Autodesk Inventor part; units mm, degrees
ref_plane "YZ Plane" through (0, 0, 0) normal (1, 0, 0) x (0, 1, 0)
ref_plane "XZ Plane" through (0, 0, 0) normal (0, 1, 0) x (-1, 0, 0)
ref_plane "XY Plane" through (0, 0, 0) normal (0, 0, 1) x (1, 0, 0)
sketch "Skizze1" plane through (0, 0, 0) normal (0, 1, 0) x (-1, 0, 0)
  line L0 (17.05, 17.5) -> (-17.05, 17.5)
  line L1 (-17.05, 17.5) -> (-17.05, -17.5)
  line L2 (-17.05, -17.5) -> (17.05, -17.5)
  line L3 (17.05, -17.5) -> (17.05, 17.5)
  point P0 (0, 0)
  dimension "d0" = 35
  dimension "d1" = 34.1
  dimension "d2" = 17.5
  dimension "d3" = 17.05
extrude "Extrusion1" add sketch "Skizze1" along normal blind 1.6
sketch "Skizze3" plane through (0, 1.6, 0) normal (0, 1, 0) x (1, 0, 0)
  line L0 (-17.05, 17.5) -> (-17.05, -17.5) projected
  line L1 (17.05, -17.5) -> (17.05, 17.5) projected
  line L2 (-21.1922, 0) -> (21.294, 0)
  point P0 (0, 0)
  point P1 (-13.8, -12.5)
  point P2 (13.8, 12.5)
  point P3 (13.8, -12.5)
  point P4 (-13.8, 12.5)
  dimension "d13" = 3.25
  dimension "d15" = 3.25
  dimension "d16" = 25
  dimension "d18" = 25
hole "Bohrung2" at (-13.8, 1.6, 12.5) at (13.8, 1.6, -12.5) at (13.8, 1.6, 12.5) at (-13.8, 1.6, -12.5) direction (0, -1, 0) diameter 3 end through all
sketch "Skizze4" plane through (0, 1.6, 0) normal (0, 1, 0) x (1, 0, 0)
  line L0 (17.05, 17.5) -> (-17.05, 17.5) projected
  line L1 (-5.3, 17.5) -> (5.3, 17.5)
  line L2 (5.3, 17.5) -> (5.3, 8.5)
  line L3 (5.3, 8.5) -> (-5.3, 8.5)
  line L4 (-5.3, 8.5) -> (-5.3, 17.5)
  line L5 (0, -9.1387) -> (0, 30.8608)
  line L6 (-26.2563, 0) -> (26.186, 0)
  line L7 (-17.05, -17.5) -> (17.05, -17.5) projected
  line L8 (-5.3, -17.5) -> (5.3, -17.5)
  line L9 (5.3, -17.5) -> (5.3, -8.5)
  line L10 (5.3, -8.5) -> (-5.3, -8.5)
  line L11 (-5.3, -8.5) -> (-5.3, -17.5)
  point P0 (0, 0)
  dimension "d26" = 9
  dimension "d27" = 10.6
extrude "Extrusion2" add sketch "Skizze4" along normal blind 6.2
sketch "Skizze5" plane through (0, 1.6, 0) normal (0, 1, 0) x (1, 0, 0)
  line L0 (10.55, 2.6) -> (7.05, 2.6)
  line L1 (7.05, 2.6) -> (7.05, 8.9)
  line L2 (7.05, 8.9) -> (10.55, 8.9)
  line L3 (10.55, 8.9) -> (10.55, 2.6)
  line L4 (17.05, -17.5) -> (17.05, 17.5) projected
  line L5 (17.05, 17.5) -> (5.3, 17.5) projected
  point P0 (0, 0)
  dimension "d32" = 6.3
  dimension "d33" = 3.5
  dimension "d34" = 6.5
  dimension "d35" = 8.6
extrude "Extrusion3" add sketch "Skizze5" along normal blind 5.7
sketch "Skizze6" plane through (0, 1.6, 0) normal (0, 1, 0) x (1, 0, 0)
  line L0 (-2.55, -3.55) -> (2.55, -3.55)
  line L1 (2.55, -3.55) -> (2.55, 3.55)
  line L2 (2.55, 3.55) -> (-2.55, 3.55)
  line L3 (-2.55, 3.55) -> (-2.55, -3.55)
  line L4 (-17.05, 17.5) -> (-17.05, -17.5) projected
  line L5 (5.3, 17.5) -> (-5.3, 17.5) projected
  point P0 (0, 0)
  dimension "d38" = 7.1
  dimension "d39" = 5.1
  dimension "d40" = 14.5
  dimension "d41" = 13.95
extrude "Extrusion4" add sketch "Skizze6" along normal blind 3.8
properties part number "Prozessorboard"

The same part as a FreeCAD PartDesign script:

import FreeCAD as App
import Part
import Sketcher
Q = App.Units.Quantity

doc = App.newDocument("Part")
body = doc.addObject("PartDesign::Body", "Body")

sketch1 = body.newObject("Sketcher::SketchObject", "Sketch")
sketch1.AttachmentSupport = (doc.getObject("XZ_Plane"), [""])
sketch1.MapMode = "FlatFace"
sketch1.addGeometry([
    Part.LineSegment(App.Vector(-17, -18, 0), App.Vector(-17, 18, 0)),
    Part.LineSegment(App.Vector(-17, 18, 0), App.Vector(17, 18, 0)),
    Part.LineSegment(App.Vector(17, 18, 0), App.Vector(17, -18, 0)),
    Part.LineSegment(App.Vector(17, -18, 0), App.Vector(-17, -18, 0)),
], False)
sketch1.addConstraint([
    Sketcher.Constraint("Coincident", 0, 2, 1, 1),
    Sketcher.Constraint("Coincident", 1, 2, 2, 1),
    Sketcher.Constraint("Coincident", 2, 2, 3, 1),
    Sketcher.Constraint("Coincident", 3, 2, 0, 1),
    Sketcher.Constraint("Vertical", 0),
    Sketcher.Constraint("Horizontal", 1),
    Sketcher.Constraint("Vertical", 2),
    Sketcher.Constraint("Horizontal", 3),
    Sketcher.Constraint("Symmetric", 0, 2, 2, 2, -1, 1),
    Sketcher.Constraint("DistanceY", 0, 1, 0, 2, Q("35 mm")),
    Sketcher.Constraint("DistanceX", 1, 1, 1, 2, Q("34.1 mm")),
])
pad1 = body.newObject("PartDesign::Pad", "Pad")
pad1.Profile = sketch1
pad1.Length = 1.6
pad1.Reversed = True

sketch2 = body.newObject("Sketcher::SketchObject", "Sketch001")
sketch2.AttachmentSupport = (doc.getObject("XZ_Plane"), [""])
sketch2.MapMode = "FlatFace"
sketch2.AttachmentOffset = App.Placement(App.Vector(0, 0, -1.6), App.Rotation())
sketch2.addGeometry([
    Part.Circle(App.Vector(-13.8, 12.5, 0), App.Vector(0, 0, 1), 1.5),
    Part.Circle(App.Vector(13.8, -12.5, 0), App.Vector(0, 0, 1), 1.5),
    Part.Circle(App.Vector(13.8, 12.5, 0), App.Vector(0, 0, 1), 1.5),
    Part.Circle(App.Vector(-13.8, -12.5, 0), App.Vector(0, 0, 1), 1.5),
], False)
sketch2.addConstraint([
    Sketcher.Constraint("Equal", 0, 1),
    Sketcher.Constraint("Equal", 1, 2),
    Sketcher.Constraint("Equal", 2, 3),
    Sketcher.Constraint("Symmetric", 0, 3, 1, 3, -1, 1),
    Sketcher.Constraint("Symmetric", 2, 3, 3, 3, -1, 1),
    Sketcher.Constraint("Symmetric", 0, 3, 2, 3, -2),
    Sketcher.Constraint("Diameter", 0, Q("3 mm")),
    Sketcher.Constraint("DistanceY", 1, 3, 0, 3, Q("25 mm")),
    Sketcher.Constraint("DistanceX", 0, 3, -1, 1, Q("13.8 mm")),
])
doc.recompute()
hole = body.newObject("PartDesign::Hole", "Hole")
hole.Profile = sketch2
hole.ThreadType = "None"
hole.Diameter = 3
hole.DepthType = "ThroughAll"
hole.Reversed = True

sketch3 = body.newObject("Sketcher::SketchObject", "Sketch002")
sketch3.AttachmentSupport = (doc.getObject("XZ_Plane"), [""])
sketch3.MapMode = "FlatFace"
sketch3.AttachmentOffset = App.Placement(App.Vector(0, 0, -1.6), App.Rotation())
sketch3.addGeometry([
    Part.LineSegment(App.Vector(5, -8, 0), App.Vector(5, -18, 0)),
    Part.LineSegment(App.Vector(5, -18, 0), App.Vector(-5, -18, 0)),
    Part.LineSegment(App.Vector(-5, -18, 0), App.Vector(-5, -8, 0)),
    Part.LineSegment(App.Vector(-5, -8, 0), App.Vector(5, -8, 0)),
    Part.LineSegment(App.Vector(5, 8, 0), App.Vector(-5, 8, 0)),
    Part.LineSegment(App.Vector(-5, 8, 0), App.Vector(-5, 18, 0)),
    Part.LineSegment(App.Vector(-5, 18, 0), App.Vector(5, 18, 0)),
    Part.LineSegment(App.Vector(5, 18, 0), App.Vector(5, 8, 0)),
], False)
sketch3.addConstraint([
    Sketcher.Constraint("Coincident", 0, 2, 1, 1),
    Sketcher.Constraint("Coincident", 1, 2, 2, 1),
    Sketcher.Constraint("Coincident", 2, 2, 3, 1),
    Sketcher.Constraint("Coincident", 3, 2, 0, 1),
    Sketcher.Constraint("Coincident", 4, 2, 5, 1),
    Sketcher.Constraint("Coincident", 5, 2, 6, 1),
    Sketcher.Constraint("Coincident", 6, 2, 7, 1),
    Sketcher.Constraint("Coincident", 7, 2, 4, 1),
    Sketcher.Constraint("Vertical", 0),
    Sketcher.Constraint("Horizontal", 1),
    Sketcher.Constraint("Vertical", 2),
    Sketcher.Constraint("Horizontal", 3),
    Sketcher.Constraint("Horizontal", 4),
    Sketcher.Constraint("Vertical", 5),
    Sketcher.Constraint("Horizontal", 6),
    Sketcher.Constraint("Vertical", 7),
    Sketcher.Constraint("Symmetric", 3, 2, 4, 2, -1, 1),
    Sketcher.Constraint("Symmetric", 1, 2, 6, 2, -1, 1),
    Sketcher.Constraint("Vertical", 2, 2, 4, 2),
    Sketcher.Constraint("DistanceY", 0, 2, 0, 1, Q("9 mm")),
    Sketcher.Constraint("DistanceX", 1, 2, 1, 1, Q("10.6 mm")),
    Sketcher.Constraint("DistanceY", 2, 2, 4, 2, Q("17 mm")),
])
pad2 = body.newObject("PartDesign::Pad", "Pad001")
pad2.Profile = sketch3
pad2.Length = 6.2
pad2.Reversed = True

sketch4 = body.newObject("Sketcher::SketchObject", "Sketch003")
sketch4.AttachmentSupport = (doc.getObject("XZ_Plane"), [""])
sketch4.MapMode = "FlatFace"
sketch4.AttachmentOffset = App.Placement(App.Vector(0, 0, -1.6), App.Rotation())
sketch4.addGeometry([
    Part.LineSegment(App.Vector(7, -2.6, 0), App.Vector(10.6, -2.6, 0)),
    Part.LineSegment(App.Vector(10.6, -2.6, 0), App.Vector(10.6, -8.9, 0)),
    Part.LineSegment(App.Vector(10.6, -8.9, 0), App.Vector(7, -8.9, 0)),
    Part.LineSegment(App.Vector(7, -8.9, 0), App.Vector(7, -2.6, 0)),
], False)
sketch4.addConstraint([
    Sketcher.Constraint("Coincident", 0, 2, 1, 1),
    Sketcher.Constraint("Coincident", 1, 2, 2, 1),
    Sketcher.Constraint("Coincident", 2, 2, 3, 1),
    Sketcher.Constraint("Coincident", 3, 2, 0, 1),
    Sketcher.Constraint("Horizontal", 0),
    Sketcher.Constraint("Vertical", 1),
    Sketcher.Constraint("Horizontal", 2),
    Sketcher.Constraint("Vertical", 3),
    Sketcher.Constraint("DistanceX", 0, 1, 0, 2, Q("3.5 mm")),
    Sketcher.Constraint("DistanceY", 1, 2, 1, 1, Q("6.3 mm")),
    Sketcher.Constraint("DistanceY", 0, 2, -1, 1, Q("2.6 mm")),
    Sketcher.Constraint("DistanceX", -1, 1, 0, 2, Q("10.55 mm")),
])
pad3 = body.newObject("PartDesign::Pad", "Pad002")
pad3.Profile = sketch4
pad3.Length = 5.7
pad3.Reversed = True

sketch5 = body.newObject("Sketcher::SketchObject", "Sketch004")
sketch5.AttachmentSupport = (doc.getObject("XZ_Plane"), [""])
sketch5.MapMode = "FlatFace"
sketch5.AttachmentOffset = App.Placement(App.Vector(0, 0, -1.6), App.Rotation())
sketch5.addGeometry([
    Part.LineSegment(App.Vector(-3, -4, 0), App.Vector(-3, 4, 0)),
    Part.LineSegment(App.Vector(-3, 4, 0), App.Vector(3, 4, 0)),
    Part.LineSegment(App.Vector(3, 4, 0), App.Vector(3, -4, 0)),
    Part.LineSegment(App.Vector(3, -4, 0), App.Vector(-3, -4, 0)),
], False)
sketch5.addConstraint([
    Sketcher.Constraint("Coincident", 0, 2, 1, 1),
    Sketcher.Constraint("Coincident", 1, 2, 2, 1),
    Sketcher.Constraint("Coincident", 2, 2, 3, 1),
    Sketcher.Constraint("Coincident", 3, 2, 0, 1),
    Sketcher.Constraint("Vertical", 0),
    Sketcher.Constraint("Horizontal", 1),
    Sketcher.Constraint("Vertical", 2),
    Sketcher.Constraint("Horizontal", 3),
    Sketcher.Constraint("Symmetric", 0, 2, 2, 2, -1, 1),
    Sketcher.Constraint("DistanceX", 1, 1, 1, 2, Q("5.1 mm")),
    Sketcher.Constraint("DistanceY", 0, 1, 0, 2, Q("7.1 mm")),
])
pad4 = body.newObject("PartDesign::Pad", "Pad003")
pad4.Profile = sketch5
pad4.Length = 3.8
pad4.Reversed = True

doc.recompute()
